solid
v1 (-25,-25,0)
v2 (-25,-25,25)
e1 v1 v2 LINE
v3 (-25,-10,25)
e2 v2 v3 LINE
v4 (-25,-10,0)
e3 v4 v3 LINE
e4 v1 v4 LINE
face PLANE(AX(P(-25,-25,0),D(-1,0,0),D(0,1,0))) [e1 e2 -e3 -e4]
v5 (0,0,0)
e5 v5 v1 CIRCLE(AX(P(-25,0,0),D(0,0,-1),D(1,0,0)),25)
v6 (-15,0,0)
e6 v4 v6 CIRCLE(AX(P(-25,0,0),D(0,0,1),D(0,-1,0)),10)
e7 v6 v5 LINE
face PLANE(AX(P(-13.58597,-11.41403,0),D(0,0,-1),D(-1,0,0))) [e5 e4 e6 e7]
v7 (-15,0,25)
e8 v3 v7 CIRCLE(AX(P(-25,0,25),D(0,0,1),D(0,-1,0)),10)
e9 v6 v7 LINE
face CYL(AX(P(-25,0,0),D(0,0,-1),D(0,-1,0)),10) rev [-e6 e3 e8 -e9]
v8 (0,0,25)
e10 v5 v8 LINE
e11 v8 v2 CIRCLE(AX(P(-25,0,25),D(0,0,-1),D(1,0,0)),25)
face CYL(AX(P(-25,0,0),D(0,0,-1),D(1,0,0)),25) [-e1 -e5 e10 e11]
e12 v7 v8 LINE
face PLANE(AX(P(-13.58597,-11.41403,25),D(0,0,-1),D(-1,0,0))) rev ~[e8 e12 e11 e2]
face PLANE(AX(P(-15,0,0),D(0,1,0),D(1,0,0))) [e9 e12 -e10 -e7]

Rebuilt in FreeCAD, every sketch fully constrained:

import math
import FreeCAD as App
import Part
import Sketcher

V = App.Vector
Q = App.Units.Quantity

doc = App.newDocument("Part")
params = doc.addObject("Spreadsheet::Sheet", "Params")
for row, (alias, value) in enumerate([
    ("sketch1_radius", "10 mm"),
    ("sketch1_radius2", "25 mm"),
    ("pad1_length", "25 mm"),
], start=1):
    params.set(f"A{row}", alias)
    params.set(f"B{row}", "=" + value)
    params.setAlias(f"B{row}", alias)

body = doc.addObject("PartDesign::Body", "Body")

# Sketch on XY plane
sketch1 = body.newObject("Sketcher::SketchObject", "Sketch")
sketch1.AttachmentSupport = (doc.getObject("XY_Plane"), [""])
sketch1.MapMode = "FlatFace"
sketch1.addGeometry([
    Part.LineSegment(V(0, 0, 0), V(-15, 0, 0)),
    Part.ArcOfCircle(Part.Circle(V(-25, 0, 0), V(0, 0, 1), 10), math.radians(-90), math.radians(0)),
    Part.LineSegment(V(-25, -10, 0), V(-25, -25, 0)),
    Part.ArcOfCircle(Part.Circle(V(-25, 0, 0), V(0, 0, 1), 25), math.radians(-90), math.radians(0)),
], False)
sketch1.addConstraint([
    Sketcher.Constraint("Coincident", 0, 2, 1, 2),
    Sketcher.Constraint("Coincident", 1, 1, 2, 1),
    Sketcher.Constraint("Coincident", 2, 2, 3, 1),
    Sketcher.Constraint("Coincident", 3, 2, 0, 1),
    Sketcher.Constraint("Horizontal", 0),
    Sketcher.Constraint("Vertical", 2),
    Sketcher.Constraint("Coincident", 3, 2, -1, 1),
    Sketcher.Constraint("Coincident", 3, 3, 1, 3),
    Sketcher.Constraint("PointOnObject", 1, 3, -1),
    Sketcher.Constraint("Vertical", 3, 3, 1, 1),
    Sketcher.Constraint("Radius", 1, Q("10 mm")),
    Sketcher.Constraint("Radius", 3, Q("25 mm")),
])
sketch1.setExpression("Constraints[10]", "Params.sketch1_radius")
sketch1.setExpression("Constraints[11]", "Params.sketch1_radius2")
pad1 = body.newObject("PartDesign::Pad", "Pad")
pad1.Profile = sketch1
pad1.setExpression("Length", "Params.pad1_length")

doc.recompute()
